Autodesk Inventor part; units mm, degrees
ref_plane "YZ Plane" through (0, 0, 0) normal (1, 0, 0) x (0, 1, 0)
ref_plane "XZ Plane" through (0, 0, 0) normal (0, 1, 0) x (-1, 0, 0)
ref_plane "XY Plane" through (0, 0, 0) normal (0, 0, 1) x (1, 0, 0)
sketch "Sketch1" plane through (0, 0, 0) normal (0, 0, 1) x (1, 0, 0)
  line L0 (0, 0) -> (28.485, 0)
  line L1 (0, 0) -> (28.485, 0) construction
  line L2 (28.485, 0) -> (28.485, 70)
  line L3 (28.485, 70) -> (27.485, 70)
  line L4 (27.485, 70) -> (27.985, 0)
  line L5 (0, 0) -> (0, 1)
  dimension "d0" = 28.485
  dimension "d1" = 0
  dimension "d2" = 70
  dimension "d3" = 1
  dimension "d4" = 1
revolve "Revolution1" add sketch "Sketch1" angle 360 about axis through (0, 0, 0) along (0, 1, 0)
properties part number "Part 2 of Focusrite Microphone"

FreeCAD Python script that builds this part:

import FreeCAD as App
import Part
import Sketcher

V = App.Vector


def add_polygon(sketch, points):
    """Adds a closed chain of lines whose ends are joined by coincident constraints."""
    first, n = sketch.GeometryCount, len(points)
    for a, b in zip(points, points[1:] + points[:1]):
        sketch.addGeometry(Part.LineSegment(App.Vector(*a, 0), App.Vector(*b, 0)), False)
    for i in range(n):
        sketch.addConstraint(Sketcher.Constraint("Coincident", first + i, 2, first + (i + 1) % n, 1))

doc = App.newDocument("Part")
body = doc.addObject("PartDesign::Body", "Body")

sketch1 = body.newObject("Sketcher::SketchObject", "Sketch")
sketch1.AttachmentSupport = (doc.getObject("XY_Plane"), [""])
sketch1.MapMode = "FlatFace"
add_polygon(sketch1, [(27.485, 70), (27.985, 0), (28.485, 0), (28.485, 70)])
sketch1.addConstraint([
    Sketcher.Constraint("Horizontal", 1),
    Sketcher.Constraint("Vertical", 2),
    Sketcher.Constraint("Horizontal", 3),
    Sketcher.Constraint("PointOnObject", 0, 2, -1),
    Sketcher.Constraint("DistanceX", 3, 2, 3, 1, 1.0),
    Sketcher.Constraint("DistanceY", 2, 1, 2, 2, 70.0),
    Sketcher.Constraint("DistanceX", 1, 1, 1, 2, 0.5),
    Sketcher.Constraint("DistanceX", -1, 1, 1, 2, 28.485),
])
revolution = body.newObject("PartDesign::Revolution", "Revolution")
revolution.Profile = sketch1
revolution.ReferenceAxis = (sketch1, ["V_Axis"])
revolution.Angle = 360

doc.recompute()
